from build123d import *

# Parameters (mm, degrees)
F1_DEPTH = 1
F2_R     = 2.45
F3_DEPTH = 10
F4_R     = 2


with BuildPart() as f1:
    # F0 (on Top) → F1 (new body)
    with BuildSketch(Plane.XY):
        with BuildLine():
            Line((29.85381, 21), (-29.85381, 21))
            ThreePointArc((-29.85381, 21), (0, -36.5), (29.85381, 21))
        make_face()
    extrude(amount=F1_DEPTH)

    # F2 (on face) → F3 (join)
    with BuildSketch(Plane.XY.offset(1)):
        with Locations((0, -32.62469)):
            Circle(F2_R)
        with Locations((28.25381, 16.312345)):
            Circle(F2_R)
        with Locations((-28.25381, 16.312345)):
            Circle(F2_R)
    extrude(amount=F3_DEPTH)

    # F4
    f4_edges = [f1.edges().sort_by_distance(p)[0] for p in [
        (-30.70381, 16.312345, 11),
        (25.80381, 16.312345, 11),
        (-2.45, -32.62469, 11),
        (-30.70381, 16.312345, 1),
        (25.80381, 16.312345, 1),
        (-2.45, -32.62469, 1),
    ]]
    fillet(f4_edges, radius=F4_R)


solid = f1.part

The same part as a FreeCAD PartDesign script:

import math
import FreeCAD as App
import Part
import Sketcher

V = App.Vector


def edges_at(feature, points):
    """Names of the edges that pass closest to the given points."""
    edges = feature.Shape.Edges
    near = lambda p: min(range(len(edges)), key=lambda i: edges[i].distToShape(Part.Vertex(*p))[0])
    return sorted({f"Edge{near(p) + 1}" for p in points})

doc = App.newDocument("Part")
body = doc.addObject("PartDesign::Body", "Body")

# Sketch on XY plane
sketch1 = doc.addObject("Sketcher::SketchObject", "Sketch")
body.addObject(sketch1)
sketch1.AttachmentSupport = (doc.XY_Plane, [""])
sketch1.MapMode = "FlatFace"
sketch1.addGeometry(Part.LineSegment(V(30, 21, 0), V(-30, 21, 0)), False)
sketch1.addGeometry(Part.ArcOfCircle(Part.Circle(V(0, 0, 0), V(0, 0, 1), 36), math.radians(145), math.radians(395)), False)
sketch1.addConstraint(Sketcher.Constraint("Coincident", 0, 1, 1, 2))
sketch1.addConstraint(Sketcher.Constraint("Coincident", 1, 1, 0, 2))
sketch1.addConstraint(Sketcher.Constraint("Horizontal", 0))
sketch1.addConstraint(Sketcher.Constraint("Coincident", 1, 3, -1, 1))
sketch1.addConstraint(Sketcher.Constraint("Radius", 1, 36.5))
sketch1.addConstraint(Sketcher.Constraint("DistanceY", -1, 1, 0, 1, 21.0))
pad1 = doc.addObject("PartDesign::Pad", "Pad")
body.addObject(pad1)
pad1.Profile = sketch1
pad1.Length = 1

# Sketch on XY plane
sketch2 = doc.addObject("Sketcher::SketchObject", "Sketch001")
body.addObject(sketch2)
sketch2.AttachmentSupport = (doc.XY_Plane, [""])
sketch2.MapMode = "FlatFace"
sketch2.AttachmentOffset = App.Placement(V(0, 0, 1), App.Rotation())
sketch2.addGeometry(Part.Circle(V(0, -32.6, 0), V(0, 0, 1), 2.5), False)
sketch2.addGeometry(Part.Circle(V(28.3, 16.3, 0), V(0, 0, 1), 2.5), False)
sketch2.addGeometry(Part.Circle(V(-28.3, 16.3, 0), V(0, 0, 1), 2.5), False)
sketch2.addConstraint(Sketcher.Constraint("Equal", 0, 1))
sketch2.addConstraint(Sketcher.Constraint("Equal", 1, 2))
sketch2.addConstraint(Sketcher.Constraint("Symmetric", 1, 3, 2, 3, -2))
sketch2.addConstraint(Sketcher.Constraint("PointOnObject", 0, 3, -2))
sketch2.addConstraint(Sketcher.Constraint("Diameter", 0, 4.9))
sketch2.addConstraint(Sketcher.Constraint("DistanceY", 0, 3, -1, 1, 32.62469))
sketch2.addConstraint(Sketcher.Constraint("DistanceX", -1, 1, 1, 3, 28.25381))
sketch2.addConstraint(Sketcher.Constraint("DistanceY", -1, 1, 1, 3, 16.312345))
pad2 = doc.addObject("PartDesign::Pad", "Pad001")
body.addObject(pad2)
pad2.Profile = sketch2
pad2.Length = 10
doc.recompute()

fillet = doc.addObject("PartDesign::Fillet", "Fillet")
body.addObject(fillet)
fillet.Base = (pad2, edges_at(pad2, [
    (-30.704, 16.312, 11),
    (25.804, 16.312, 11),
    (-2.45, -32.625, 11),
    (-30.704, 16.312, 1),
    (25.804, 16.312, 1),
    (-2.45, -32.625, 1),
]))
fillet.Radius = 2

doc.recompute()
